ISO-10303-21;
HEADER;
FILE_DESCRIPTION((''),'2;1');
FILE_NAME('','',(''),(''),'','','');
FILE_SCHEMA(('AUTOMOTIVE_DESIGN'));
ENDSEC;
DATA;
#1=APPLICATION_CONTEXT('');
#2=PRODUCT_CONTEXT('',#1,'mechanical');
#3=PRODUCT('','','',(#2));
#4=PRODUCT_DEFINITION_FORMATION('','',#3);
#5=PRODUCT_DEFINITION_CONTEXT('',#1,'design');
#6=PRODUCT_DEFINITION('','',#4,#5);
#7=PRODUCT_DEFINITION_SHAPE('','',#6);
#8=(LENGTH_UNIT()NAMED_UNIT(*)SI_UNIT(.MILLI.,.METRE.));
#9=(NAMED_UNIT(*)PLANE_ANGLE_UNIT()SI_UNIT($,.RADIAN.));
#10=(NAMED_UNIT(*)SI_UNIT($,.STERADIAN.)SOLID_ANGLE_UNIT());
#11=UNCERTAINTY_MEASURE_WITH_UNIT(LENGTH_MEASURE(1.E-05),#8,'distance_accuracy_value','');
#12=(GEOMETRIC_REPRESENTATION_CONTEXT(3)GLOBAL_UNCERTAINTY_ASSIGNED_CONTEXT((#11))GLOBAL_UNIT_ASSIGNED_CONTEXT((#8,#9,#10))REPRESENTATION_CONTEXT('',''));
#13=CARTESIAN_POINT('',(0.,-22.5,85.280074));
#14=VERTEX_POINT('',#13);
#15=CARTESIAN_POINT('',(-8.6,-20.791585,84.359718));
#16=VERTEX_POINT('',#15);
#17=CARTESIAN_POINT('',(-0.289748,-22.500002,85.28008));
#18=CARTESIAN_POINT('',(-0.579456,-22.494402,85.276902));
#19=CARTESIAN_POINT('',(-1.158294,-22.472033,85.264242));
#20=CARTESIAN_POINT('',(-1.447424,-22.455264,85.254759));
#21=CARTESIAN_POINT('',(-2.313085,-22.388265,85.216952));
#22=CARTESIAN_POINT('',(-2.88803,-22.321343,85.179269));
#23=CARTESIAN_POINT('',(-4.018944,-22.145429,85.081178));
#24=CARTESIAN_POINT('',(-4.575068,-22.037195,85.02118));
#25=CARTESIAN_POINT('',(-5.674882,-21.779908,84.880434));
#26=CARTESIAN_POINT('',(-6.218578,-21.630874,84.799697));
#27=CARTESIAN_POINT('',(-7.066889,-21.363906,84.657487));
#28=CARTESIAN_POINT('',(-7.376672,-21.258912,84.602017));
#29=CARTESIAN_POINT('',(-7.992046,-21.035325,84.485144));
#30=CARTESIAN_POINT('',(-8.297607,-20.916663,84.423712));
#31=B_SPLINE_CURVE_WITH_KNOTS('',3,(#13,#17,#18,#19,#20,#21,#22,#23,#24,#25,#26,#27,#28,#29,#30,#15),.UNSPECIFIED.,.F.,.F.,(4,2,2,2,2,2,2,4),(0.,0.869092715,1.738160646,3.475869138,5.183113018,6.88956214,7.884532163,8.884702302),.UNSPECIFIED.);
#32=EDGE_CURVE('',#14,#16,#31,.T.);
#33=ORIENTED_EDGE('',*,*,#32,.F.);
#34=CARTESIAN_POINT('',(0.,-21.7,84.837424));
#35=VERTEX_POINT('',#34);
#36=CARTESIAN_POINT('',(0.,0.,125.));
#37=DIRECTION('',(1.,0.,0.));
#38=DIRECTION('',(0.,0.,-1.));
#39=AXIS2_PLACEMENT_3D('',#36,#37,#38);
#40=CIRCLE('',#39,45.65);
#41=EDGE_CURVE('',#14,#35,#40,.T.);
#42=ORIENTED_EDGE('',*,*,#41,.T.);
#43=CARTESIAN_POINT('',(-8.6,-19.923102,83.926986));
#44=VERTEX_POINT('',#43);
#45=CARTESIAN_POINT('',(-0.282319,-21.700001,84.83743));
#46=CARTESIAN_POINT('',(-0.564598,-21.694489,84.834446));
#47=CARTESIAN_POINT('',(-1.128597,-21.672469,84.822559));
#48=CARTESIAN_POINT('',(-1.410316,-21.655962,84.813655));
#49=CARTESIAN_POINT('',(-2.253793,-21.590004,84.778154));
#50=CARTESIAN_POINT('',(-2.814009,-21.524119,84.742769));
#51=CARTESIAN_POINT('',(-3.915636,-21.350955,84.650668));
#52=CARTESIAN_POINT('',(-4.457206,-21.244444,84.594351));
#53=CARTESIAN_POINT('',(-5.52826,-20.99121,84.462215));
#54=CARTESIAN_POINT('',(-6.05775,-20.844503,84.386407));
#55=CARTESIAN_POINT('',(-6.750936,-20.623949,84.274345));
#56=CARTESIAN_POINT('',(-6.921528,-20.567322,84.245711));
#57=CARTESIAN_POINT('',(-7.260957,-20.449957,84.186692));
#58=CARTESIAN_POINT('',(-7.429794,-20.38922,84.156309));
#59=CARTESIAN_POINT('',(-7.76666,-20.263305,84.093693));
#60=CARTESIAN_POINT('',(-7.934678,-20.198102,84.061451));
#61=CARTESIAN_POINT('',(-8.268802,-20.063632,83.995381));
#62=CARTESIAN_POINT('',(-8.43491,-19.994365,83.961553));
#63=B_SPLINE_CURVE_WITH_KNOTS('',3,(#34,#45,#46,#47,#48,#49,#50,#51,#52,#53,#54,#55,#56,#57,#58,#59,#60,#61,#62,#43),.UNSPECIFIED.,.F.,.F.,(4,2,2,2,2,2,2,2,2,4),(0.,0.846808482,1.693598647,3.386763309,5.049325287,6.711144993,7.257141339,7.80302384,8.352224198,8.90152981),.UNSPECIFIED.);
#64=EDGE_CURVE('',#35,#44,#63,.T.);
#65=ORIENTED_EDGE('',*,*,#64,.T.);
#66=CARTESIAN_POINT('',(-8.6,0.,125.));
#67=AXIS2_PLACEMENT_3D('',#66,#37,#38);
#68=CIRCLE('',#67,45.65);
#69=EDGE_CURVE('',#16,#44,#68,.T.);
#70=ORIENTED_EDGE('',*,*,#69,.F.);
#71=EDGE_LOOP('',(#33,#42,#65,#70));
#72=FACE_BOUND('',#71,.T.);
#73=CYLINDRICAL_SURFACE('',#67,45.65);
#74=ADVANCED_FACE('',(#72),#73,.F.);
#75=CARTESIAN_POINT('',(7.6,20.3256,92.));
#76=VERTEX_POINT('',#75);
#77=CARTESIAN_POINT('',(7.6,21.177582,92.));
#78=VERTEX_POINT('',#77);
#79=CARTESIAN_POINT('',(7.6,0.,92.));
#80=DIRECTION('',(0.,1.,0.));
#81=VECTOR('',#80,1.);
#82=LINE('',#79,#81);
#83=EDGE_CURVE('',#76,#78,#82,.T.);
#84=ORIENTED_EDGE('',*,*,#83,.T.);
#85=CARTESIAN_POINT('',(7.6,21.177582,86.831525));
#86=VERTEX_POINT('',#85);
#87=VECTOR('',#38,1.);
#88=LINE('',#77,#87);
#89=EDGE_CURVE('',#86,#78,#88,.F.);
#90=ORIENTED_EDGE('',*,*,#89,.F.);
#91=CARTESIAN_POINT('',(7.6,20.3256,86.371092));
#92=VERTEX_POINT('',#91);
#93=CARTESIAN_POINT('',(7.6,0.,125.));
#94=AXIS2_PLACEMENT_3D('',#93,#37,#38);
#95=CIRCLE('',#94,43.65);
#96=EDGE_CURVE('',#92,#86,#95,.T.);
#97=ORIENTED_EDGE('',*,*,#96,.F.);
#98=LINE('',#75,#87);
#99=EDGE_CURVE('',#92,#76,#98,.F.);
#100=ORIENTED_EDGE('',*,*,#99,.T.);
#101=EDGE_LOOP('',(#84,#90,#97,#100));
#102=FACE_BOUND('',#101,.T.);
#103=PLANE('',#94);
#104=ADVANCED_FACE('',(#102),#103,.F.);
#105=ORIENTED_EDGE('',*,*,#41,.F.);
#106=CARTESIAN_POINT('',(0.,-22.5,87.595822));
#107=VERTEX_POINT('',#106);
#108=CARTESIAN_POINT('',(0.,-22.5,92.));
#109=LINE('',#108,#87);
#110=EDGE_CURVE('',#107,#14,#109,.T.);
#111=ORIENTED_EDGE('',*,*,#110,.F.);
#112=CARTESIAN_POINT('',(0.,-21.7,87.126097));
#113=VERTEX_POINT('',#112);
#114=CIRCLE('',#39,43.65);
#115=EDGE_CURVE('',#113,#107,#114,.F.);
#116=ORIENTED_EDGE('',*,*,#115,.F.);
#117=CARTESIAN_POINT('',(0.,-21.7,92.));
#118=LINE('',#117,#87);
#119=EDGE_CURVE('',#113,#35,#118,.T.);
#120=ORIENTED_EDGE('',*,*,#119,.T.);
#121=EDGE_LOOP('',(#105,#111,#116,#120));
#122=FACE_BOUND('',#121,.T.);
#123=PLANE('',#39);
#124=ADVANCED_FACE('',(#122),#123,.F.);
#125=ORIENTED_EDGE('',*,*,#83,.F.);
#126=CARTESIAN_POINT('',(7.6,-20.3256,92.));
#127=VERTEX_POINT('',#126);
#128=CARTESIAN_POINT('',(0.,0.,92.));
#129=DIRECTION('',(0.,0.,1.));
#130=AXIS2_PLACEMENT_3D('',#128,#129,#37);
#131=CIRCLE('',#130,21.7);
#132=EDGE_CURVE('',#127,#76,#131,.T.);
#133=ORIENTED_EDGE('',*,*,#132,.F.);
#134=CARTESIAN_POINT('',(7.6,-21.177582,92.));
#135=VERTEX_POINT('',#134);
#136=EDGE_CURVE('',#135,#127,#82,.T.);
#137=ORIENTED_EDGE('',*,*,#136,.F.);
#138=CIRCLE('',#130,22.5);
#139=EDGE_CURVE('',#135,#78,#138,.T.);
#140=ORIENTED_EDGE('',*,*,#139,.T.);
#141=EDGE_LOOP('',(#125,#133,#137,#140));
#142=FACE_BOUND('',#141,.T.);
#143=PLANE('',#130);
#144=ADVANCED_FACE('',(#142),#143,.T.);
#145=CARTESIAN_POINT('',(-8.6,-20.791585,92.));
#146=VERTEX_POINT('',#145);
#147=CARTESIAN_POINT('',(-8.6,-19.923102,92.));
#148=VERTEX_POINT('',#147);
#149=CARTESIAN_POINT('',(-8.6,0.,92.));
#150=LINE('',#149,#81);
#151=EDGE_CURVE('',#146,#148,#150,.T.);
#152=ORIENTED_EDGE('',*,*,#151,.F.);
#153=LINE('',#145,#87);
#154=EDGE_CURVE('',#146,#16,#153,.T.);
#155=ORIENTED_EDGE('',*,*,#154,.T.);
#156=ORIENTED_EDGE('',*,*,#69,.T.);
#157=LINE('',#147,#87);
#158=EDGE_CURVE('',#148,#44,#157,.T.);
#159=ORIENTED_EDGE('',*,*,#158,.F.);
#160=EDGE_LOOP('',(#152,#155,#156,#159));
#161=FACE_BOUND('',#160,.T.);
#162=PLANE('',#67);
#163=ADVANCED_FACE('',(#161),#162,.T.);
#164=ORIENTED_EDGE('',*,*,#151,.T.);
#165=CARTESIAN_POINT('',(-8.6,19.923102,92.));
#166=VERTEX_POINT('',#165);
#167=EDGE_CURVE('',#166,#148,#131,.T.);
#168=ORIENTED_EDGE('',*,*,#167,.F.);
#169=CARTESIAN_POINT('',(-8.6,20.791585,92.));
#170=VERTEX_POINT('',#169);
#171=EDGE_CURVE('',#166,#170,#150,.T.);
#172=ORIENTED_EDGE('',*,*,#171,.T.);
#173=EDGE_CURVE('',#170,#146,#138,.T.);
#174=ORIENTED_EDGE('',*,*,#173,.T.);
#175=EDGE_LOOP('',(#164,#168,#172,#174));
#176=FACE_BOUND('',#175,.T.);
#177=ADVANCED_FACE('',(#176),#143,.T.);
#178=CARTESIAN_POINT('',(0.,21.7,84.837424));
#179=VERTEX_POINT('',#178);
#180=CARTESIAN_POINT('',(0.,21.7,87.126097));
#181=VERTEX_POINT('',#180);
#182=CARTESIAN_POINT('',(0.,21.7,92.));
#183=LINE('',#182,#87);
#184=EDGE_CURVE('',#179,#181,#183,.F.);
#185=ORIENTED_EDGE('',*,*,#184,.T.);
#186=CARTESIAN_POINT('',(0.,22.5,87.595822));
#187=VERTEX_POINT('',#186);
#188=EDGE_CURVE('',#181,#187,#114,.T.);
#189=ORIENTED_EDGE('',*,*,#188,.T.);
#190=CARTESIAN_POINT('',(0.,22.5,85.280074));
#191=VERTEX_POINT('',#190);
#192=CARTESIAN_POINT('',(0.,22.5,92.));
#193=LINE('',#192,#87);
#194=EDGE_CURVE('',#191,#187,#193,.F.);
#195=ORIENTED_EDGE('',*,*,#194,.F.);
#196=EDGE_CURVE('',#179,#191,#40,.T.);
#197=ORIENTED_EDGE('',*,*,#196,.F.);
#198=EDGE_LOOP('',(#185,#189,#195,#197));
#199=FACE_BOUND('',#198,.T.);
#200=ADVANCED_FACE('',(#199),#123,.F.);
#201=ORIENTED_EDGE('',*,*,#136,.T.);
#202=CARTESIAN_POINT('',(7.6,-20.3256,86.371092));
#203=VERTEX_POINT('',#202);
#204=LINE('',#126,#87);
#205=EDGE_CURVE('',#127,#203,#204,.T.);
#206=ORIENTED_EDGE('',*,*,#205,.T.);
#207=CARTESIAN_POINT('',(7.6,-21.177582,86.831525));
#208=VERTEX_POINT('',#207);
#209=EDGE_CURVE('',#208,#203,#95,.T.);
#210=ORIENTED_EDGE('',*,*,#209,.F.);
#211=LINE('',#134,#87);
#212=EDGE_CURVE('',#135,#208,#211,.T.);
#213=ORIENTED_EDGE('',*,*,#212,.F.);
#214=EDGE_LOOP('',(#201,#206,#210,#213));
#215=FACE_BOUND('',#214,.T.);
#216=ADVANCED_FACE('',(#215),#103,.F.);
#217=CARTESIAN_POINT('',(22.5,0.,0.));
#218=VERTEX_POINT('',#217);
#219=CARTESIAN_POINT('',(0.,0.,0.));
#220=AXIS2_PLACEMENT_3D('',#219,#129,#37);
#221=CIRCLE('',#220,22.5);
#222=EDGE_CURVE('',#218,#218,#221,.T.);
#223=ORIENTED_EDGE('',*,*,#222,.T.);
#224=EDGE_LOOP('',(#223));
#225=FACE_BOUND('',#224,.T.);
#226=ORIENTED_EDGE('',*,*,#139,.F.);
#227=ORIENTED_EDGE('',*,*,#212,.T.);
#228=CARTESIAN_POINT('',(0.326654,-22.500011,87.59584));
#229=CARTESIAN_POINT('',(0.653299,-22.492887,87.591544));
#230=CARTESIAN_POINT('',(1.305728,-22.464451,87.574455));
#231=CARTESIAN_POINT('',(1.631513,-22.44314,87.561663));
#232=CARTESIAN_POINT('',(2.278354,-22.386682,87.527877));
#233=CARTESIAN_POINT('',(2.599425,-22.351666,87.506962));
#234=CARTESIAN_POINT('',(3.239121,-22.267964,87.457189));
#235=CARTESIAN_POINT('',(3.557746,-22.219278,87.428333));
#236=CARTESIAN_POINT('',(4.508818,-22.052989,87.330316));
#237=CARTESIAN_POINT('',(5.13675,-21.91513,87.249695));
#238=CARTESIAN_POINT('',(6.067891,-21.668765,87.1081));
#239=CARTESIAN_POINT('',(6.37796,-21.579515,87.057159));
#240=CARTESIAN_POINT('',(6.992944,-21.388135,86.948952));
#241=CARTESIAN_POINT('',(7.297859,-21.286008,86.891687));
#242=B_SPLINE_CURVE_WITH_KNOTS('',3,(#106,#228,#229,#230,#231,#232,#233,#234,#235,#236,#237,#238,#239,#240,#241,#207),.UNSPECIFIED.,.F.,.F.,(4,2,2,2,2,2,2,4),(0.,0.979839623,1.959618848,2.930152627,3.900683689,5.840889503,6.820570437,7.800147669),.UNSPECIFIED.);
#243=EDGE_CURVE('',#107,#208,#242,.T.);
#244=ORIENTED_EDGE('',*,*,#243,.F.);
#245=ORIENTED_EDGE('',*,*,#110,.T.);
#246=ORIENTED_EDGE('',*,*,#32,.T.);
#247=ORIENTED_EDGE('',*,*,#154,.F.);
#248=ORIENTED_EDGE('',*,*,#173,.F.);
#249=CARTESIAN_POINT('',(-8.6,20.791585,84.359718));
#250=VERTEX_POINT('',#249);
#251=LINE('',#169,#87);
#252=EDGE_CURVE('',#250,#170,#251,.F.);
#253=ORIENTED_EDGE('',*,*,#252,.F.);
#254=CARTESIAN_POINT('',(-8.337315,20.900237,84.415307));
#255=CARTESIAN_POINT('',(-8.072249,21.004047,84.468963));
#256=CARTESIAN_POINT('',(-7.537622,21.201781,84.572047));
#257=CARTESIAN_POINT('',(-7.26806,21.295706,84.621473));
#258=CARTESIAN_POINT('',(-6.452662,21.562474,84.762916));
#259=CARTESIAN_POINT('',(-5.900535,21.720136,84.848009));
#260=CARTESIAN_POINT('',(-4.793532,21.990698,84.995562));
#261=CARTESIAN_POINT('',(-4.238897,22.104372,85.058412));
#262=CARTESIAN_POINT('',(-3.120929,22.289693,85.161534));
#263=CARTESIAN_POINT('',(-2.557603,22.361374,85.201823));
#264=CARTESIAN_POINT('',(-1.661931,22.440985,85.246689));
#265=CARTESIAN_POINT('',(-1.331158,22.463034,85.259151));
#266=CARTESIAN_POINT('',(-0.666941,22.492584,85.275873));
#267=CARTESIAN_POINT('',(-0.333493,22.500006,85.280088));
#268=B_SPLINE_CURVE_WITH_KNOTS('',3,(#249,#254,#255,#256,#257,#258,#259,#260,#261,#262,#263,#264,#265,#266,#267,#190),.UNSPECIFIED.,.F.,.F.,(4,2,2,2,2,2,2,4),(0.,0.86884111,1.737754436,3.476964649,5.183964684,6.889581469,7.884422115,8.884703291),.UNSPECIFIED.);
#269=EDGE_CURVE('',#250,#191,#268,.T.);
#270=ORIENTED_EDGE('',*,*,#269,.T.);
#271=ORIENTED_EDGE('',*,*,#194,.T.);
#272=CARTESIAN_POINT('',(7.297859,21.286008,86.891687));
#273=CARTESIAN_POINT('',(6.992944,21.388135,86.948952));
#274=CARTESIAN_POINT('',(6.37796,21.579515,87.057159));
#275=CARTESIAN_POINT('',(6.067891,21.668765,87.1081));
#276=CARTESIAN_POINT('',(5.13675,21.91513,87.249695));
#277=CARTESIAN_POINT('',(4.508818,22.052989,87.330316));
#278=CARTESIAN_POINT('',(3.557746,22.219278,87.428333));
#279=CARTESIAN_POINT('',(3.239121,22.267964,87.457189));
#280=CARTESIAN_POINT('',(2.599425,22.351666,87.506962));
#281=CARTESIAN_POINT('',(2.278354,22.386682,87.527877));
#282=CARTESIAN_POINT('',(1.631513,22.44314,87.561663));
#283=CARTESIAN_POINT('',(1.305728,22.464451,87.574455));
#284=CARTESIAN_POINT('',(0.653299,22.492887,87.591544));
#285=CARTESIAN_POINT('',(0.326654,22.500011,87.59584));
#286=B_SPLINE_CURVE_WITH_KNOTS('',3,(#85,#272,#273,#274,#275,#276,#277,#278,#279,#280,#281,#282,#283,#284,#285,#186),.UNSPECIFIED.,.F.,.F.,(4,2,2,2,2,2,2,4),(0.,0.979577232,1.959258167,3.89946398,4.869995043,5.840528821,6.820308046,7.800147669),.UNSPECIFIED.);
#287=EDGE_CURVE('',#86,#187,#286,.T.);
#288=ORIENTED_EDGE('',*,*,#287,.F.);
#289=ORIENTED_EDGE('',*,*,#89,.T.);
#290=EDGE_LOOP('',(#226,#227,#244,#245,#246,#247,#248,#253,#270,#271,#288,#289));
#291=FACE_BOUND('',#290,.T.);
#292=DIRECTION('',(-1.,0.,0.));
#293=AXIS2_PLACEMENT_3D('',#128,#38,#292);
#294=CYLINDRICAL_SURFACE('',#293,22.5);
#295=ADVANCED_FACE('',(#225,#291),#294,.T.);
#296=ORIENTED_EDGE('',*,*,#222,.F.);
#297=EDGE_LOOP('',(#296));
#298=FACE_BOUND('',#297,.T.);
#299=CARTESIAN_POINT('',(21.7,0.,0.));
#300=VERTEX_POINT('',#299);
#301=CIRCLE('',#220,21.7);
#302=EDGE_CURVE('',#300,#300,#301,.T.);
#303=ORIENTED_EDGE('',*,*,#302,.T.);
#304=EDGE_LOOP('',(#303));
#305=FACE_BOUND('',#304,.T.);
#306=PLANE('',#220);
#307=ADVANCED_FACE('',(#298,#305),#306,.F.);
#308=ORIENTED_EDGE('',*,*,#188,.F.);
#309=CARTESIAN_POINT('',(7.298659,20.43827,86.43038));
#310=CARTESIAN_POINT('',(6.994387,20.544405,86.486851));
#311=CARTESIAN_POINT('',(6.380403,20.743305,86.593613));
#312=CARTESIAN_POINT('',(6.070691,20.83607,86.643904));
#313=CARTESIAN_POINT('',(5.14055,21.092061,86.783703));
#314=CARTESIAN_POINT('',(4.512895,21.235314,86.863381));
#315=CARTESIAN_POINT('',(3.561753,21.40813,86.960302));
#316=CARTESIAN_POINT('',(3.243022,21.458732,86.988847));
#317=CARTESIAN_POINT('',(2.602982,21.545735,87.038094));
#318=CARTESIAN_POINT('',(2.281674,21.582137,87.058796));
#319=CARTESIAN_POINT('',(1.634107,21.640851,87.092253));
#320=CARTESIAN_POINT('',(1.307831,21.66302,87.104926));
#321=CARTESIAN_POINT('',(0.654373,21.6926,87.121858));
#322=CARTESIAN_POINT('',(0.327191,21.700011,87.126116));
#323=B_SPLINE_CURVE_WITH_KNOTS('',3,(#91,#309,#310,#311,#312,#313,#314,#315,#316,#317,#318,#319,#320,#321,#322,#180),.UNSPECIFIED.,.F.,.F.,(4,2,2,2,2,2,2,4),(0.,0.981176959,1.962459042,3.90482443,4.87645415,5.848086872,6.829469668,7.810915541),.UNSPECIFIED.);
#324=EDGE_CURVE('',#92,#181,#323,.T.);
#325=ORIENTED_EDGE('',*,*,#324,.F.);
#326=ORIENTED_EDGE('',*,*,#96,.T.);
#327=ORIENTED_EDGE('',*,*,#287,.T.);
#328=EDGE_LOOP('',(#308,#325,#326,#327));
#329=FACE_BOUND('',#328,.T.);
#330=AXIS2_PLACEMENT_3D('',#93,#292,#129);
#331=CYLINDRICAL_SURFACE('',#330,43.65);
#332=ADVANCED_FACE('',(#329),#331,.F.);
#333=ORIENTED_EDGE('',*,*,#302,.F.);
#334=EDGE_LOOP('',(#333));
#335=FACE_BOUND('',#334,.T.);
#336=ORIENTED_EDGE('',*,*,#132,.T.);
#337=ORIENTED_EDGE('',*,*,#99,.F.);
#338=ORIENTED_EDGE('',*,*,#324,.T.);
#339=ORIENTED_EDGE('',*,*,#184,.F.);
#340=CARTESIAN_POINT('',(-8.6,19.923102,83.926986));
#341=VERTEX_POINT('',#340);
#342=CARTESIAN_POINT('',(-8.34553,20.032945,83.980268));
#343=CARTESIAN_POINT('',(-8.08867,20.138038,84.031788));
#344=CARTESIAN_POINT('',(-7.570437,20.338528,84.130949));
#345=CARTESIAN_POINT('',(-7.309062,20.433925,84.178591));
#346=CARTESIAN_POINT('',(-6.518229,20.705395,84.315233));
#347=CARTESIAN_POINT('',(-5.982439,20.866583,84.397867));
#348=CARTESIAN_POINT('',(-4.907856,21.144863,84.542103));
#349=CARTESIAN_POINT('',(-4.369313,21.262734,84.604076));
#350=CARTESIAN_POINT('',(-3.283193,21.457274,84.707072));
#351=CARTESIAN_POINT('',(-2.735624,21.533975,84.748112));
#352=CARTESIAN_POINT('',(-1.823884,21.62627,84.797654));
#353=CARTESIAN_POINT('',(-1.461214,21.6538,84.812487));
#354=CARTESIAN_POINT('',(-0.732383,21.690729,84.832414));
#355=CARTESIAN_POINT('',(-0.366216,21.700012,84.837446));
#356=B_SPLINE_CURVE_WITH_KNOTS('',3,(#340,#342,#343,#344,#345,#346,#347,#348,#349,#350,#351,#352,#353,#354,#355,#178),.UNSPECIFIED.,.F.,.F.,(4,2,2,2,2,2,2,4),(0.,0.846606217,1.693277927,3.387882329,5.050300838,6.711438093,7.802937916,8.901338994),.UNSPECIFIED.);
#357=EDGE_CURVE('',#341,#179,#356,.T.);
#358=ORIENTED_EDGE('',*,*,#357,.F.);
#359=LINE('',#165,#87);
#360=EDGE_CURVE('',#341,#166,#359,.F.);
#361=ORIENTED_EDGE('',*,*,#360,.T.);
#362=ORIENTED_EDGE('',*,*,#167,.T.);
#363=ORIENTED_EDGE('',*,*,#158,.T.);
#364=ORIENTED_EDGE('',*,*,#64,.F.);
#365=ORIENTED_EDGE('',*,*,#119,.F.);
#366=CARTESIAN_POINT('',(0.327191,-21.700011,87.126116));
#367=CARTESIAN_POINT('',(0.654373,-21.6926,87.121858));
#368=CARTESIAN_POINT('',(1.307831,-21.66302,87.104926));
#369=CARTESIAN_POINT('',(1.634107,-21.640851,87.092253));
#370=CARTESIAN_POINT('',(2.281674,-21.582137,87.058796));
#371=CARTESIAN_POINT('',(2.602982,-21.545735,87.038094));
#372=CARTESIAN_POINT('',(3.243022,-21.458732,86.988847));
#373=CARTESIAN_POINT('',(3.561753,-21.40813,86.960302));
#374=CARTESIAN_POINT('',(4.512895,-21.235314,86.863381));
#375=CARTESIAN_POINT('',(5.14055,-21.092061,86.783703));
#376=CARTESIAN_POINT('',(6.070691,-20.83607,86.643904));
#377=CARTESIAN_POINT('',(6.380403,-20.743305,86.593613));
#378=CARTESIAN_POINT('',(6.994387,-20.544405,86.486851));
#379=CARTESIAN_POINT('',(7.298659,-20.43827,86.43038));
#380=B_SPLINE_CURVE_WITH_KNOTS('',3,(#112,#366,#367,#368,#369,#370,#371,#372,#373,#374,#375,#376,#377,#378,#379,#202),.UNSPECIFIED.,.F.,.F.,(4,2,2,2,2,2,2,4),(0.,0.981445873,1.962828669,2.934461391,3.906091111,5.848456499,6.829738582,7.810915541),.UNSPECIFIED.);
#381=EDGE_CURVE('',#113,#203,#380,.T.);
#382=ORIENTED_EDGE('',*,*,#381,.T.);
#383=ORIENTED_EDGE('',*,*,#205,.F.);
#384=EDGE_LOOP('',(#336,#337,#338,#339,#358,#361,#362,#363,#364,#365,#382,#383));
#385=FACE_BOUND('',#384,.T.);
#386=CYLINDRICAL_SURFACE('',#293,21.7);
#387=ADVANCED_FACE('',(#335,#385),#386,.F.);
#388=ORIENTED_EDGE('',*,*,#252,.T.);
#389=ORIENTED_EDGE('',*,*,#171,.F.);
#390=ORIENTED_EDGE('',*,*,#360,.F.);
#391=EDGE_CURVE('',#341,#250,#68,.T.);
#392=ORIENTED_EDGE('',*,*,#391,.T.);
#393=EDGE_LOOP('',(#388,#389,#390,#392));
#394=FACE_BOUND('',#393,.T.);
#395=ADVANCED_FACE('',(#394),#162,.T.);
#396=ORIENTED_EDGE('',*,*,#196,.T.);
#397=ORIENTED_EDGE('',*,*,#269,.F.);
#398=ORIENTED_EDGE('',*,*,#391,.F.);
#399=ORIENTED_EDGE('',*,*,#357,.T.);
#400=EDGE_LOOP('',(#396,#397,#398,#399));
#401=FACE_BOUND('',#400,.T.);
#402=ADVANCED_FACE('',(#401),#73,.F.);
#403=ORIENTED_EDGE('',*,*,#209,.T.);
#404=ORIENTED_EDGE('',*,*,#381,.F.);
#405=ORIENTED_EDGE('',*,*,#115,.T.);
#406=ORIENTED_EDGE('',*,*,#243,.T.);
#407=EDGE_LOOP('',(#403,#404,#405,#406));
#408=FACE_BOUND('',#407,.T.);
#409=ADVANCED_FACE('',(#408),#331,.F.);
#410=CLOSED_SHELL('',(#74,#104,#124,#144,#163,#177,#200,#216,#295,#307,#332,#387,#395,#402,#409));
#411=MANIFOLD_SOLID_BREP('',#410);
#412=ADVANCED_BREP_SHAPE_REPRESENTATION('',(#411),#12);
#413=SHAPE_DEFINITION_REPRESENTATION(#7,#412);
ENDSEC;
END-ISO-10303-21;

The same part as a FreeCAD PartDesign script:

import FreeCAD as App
import Part
import Sketcher
Q = App.Units.Quantity

doc = App.newDocument("Part")
body = doc.addObject("PartDesign::Body", "Body")

# Sketch on XY plane
sketch1 = doc.addObject("Sketcher::SketchObject", "Sketch")
body.addObject(sketch1)
sketch1.AttachmentSupport = (doc.XY_Plane, [""])
sketch1.MapMode = "FlatFace"
sketch1.addGeometry([
    Part.Circle(App.Vector(0, 0, 0), App.Vector(0, 0, 1), 22),
    Part.Circle(App.Vector(0, 0, 0), App.Vector(0, 0, 1), 22),
], False)
sketch1.addConstraint([
    Sketcher.Constraint("Coincident", 0, 3, -1, 1),
    Sketcher.Constraint("Coincident", 1, 3, -1, 1),
    Sketcher.Constraint("Diameter", 0, Q("45 mm")),
    Sketcher.Constraint("Diameter", 1, Q("43.4 mm")),
])
pad1 = doc.addObject("PartDesign::Pad", "Pad")
body.addObject(pad1)
pad1.Profile = sketch1
pad1.Length = 92

# Sketch on YZ plane
sketch2 = doc.addObject("Sketcher::SketchObject", "Sketch001")
body.addObject(sketch2)
sketch2.AttachmentSupport = (doc.YZ_Plane, [""])
sketch2.MapMode = "FlatFace"
sketch2.addGeometry(Part.Circle(App.Vector(0, 125, 0), App.Vector(0, 0, 1), 46), False)
sketch2.addConstraint([
    Sketcher.Constraint("PointOnObject", 0, 3, -2),
    Sketcher.Constraint("Diameter", 0, Q("91.3 mm")),
    Sketcher.Constraint("DistanceY", -1, 1, 0, 3, Q("125 mm")),
])
pocket1 = doc.addObject("PartDesign::Pocket", "Pocket")
body.addObject(pocket1)
pocket1.Profile = sketch2
pocket1.Length = 8.6

# Sketch on YZ plane
sketch3 = doc.addObject("Sketcher::SketchObject", "Sketch002")
body.addObject(sketch3)
sketch3.AttachmentSupport = (doc.YZ_Plane, [""])
sketch3.MapMode = "FlatFace"
sketch3.addGeometry(Part.Circle(App.Vector(0, 125, 0), App.Vector(0, 0, 1), 44), False)
sketch3.addConstraint([
    Sketcher.Constraint("PointOnObject", 0, 3, -2),
    Sketcher.Constraint("Diameter", 0, Q("87.3 mm")),
    Sketcher.Constraint("DistanceY", -1, 1, 0, 3, Q("125 mm")),
])
pocket2 = doc.addObject("PartDesign::Pocket", "Pocket001")
body.addObject(pocket2)
pocket2.Profile = sketch3
pocket2.Length = 7.6
pocket2.Reversed = True

doc.recompute()
